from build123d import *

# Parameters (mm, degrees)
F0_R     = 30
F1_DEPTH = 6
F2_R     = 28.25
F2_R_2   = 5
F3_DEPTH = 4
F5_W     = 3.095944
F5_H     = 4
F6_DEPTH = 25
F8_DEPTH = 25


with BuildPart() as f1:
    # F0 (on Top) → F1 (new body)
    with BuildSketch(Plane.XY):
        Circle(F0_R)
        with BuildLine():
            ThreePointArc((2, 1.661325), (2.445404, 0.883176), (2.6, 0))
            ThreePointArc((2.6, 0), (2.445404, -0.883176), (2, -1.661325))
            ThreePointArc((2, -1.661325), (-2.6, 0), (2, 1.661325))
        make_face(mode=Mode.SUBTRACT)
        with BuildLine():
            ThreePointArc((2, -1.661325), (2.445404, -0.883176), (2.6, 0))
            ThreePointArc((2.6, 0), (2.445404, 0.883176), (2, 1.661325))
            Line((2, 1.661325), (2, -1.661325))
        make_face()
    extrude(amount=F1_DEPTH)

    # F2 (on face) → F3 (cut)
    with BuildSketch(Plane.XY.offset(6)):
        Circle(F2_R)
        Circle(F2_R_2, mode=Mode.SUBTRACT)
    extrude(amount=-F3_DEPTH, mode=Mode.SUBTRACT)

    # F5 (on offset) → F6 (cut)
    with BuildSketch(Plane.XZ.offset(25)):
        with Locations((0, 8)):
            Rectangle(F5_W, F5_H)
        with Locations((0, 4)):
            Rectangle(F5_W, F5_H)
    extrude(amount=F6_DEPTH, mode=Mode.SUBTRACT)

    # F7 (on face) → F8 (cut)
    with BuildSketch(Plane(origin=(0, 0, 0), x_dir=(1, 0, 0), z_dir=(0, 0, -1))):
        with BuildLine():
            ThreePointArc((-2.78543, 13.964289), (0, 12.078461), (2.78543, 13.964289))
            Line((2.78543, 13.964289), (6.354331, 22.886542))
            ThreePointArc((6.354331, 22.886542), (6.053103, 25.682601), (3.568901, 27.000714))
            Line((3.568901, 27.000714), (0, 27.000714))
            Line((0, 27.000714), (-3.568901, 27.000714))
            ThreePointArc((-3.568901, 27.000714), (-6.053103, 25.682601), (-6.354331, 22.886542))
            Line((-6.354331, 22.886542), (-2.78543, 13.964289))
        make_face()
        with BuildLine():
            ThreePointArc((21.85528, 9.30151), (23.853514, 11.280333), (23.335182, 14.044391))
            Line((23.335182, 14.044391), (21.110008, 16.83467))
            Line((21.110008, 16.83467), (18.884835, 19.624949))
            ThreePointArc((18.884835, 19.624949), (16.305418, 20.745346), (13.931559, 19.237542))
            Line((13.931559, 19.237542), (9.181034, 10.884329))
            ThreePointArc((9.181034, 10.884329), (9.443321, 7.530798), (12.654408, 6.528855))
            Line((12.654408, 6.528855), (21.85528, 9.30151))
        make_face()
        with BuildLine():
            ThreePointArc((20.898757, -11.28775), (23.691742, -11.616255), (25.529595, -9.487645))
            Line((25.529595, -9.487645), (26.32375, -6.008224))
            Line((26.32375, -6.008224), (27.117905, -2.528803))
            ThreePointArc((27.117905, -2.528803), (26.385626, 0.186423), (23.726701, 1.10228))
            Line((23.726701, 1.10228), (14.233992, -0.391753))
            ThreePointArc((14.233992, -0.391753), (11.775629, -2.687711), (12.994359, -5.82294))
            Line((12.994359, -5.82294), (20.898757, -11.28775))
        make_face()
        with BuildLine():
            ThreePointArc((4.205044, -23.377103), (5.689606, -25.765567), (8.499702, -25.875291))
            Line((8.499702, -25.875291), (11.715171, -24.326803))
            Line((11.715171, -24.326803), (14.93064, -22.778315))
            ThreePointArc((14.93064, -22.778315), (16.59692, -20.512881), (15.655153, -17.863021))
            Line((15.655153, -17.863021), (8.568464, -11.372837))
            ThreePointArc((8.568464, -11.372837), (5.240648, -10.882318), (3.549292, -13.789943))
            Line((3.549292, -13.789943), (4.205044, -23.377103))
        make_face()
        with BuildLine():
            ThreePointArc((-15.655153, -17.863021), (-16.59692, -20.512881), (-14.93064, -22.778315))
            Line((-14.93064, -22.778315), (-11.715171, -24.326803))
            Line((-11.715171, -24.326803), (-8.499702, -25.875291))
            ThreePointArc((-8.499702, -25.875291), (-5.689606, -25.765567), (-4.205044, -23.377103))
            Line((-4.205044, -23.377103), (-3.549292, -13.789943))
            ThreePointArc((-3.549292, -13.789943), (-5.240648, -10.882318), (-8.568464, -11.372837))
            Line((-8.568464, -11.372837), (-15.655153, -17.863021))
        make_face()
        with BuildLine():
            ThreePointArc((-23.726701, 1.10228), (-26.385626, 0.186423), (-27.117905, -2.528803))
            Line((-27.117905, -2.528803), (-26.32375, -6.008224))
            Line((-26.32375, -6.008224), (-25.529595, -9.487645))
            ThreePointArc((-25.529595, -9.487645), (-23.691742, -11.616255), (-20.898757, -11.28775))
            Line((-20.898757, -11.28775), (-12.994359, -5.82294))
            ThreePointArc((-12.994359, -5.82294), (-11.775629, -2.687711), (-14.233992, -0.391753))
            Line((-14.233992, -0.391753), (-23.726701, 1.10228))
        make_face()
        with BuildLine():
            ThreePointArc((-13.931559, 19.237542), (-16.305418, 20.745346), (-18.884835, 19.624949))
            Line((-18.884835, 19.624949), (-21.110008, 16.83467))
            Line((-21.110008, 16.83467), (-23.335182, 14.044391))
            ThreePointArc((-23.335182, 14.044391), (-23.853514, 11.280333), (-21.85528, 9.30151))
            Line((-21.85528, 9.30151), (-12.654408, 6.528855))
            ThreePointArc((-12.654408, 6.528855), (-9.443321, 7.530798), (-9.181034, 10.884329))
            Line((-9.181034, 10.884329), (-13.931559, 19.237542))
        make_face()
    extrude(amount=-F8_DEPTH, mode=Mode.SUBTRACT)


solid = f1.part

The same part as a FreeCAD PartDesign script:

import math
import FreeCAD as App
import Part
import Sketcher
from FreeCAD import Vector


def add_polygon(sketch, points):
    """Adds a closed chain of lines whose ends are joined by coincident constraints."""
    first, n = sketch.GeometryCount, len(points)
    for a, b in zip(points, points[1:] + points[:1]):
        sketch.addGeometry(Part.LineSegment(App.Vector(*a, 0), App.Vector(*b, 0)), False)
    for i in range(n):
        sketch.addConstraint(Sketcher.Constraint("Coincident", first + i, 2, first + (i + 1) % n, 1))

doc = App.newDocument("Part")
body = doc.addObject("PartDesign::Body", "Body")

sketch1 = body.newObject("Sketcher::SketchObject", "Sketch")
sketch1.AttachmentSupport = (doc.getObject("XY_Plane"), [""])
sketch1.MapMode = "FlatFace"
sketch1.addGeometry(Part.Circle(Vector(0, 0, 0), Vector(0, 0, 1), 30), False)
sketch1.addGeometry(Part.ArcOfCircle(Part.Circle(Vector(0, 0, 0), Vector(0, 0, 1), 2.6), math.radians(40), math.radians(320)), False)
sketch1.addGeometry(Part.LineSegment(Vector(2, 1.7, 0), Vector(2, -1.7, 0)), False)
sketch1.addConstraint(Sketcher.Constraint("Coincident", 1, 1, 2, 1))
sketch1.addConstraint(Sketcher.Constraint("Coincident", 2, 2, 1, 2))
sketch1.addConstraint(Sketcher.Constraint("Vertical", 2))
sketch1.addConstraint(Sketcher.Constraint("Coincident", 0, 3, -1, 1))
sketch1.addConstraint(Sketcher.Constraint("Coincident", 1, 3, -1, 1))
sketch1.addConstraint(Sketcher.Constraint("Diameter", 0, 60.0))
sketch1.addConstraint(Sketcher.Constraint("Radius", 1, 2.6))
sketch1.addConstraint(Sketcher.Constraint("DistanceX", -1, 1, 1, 1, 2.0))
pad1 = body.newObject("PartDesign::Pad", "Pad")
pad1.Profile = sketch1
pad1.Length = 6

sketch2 = body.newObject("Sketcher::SketchObject", "Sketch001")
sketch2.AttachmentSupport = (doc.getObject("XY_Plane"), [""])
sketch2.MapMode = "FlatFace"
sketch2.AttachmentOffset = App.Placement(Vector(0, 0, 6), App.Rotation())
sketch2.addGeometry(Part.Circle(Vector(0, 0, 0), Vector(0, 0, 1), 28), False)
sketch2.addGeometry(Part.Circle(Vector(0, 0, 0), Vector(0, 0, 1), 5), False)
sketch2.addConstraint(Sketcher.Constraint("Coincident", 0, 3, -1, 1))
sketch2.addConstraint(Sketcher.Constraint("Coincident", 1, 3, -1, 1))
sketch2.addConstraint(Sketcher.Constraint("Diameter", 1, 10.0))
sketch2.addConstraint(Sketcher.Constraint("Diameter", 0, 56.5))
pocket1 = body.newObject("PartDesign::Pocket", "Pocket")
pocket1.Profile = sketch2
pocket1.Length = 4

sketch3 = body.newObject("Sketcher::SketchObject", "Sketch002")
sketch3.AttachmentSupport = (doc.getObject("XZ_Plane"), [""])
sketch3.MapMode = "FlatFace"
sketch3.AttachmentOffset = App.Placement(Vector(0, 0, 25), App.Rotation())
add_polygon(sketch3, [(-1.5, 10), (-1.5, 2), (1.5, 2), (1.5, 10)])
sketch3.addConstraint(Sketcher.Constraint("Vertical", 0))
sketch3.addConstraint(Sketcher.Constraint("Horizontal", 1))
sketch3.addConstraint(Sketcher.Constraint("Vertical", 2))
sketch3.addConstraint(Sketcher.Constraint("Horizontal", 3))
sketch3.addConstraint(Sketcher.Constraint("DistanceY", 0, 2, 0, 1, 8.0))
sketch3.addConstraint(Sketcher.Constraint("DistanceY", -1, 1, 0, 2, 2.0))
sketch3.addConstraint(Sketcher.Constraint("DistanceX", 1, 1, 1, 2, 3.095944))
sketch3.addConstraint(Sketcher.Constraint("DistanceX", 0, 2, -1, 1, 1.547972))
pocket2 = body.newObject("PartDesign::Pocket", "Pocket001")
pocket2.Profile = sketch3
pocket2.Length = 25
pocket2.Reversed = True

sketch4 = body.newObject("Sketcher::SketchObject", "Sketch003")
sketch4.AttachmentSupport = (doc.getObject("XY_Plane"), [""])
sketch4.MapMode = "FlatFace"
sketch4.addGeometry(Part.ArcOfCircle(Part.Circle(Vector(0, -15.1, 0), Vector(0, 0, 1), 3), math.radians(22), math.radians(158)), False)
sketch4.addGeometry(Part.LineSegment(Vector(2.8, -14, 0), Vector(6.4, -22.9, 0)), False)
sketch4.addGeometry(Part.ArcOfCircle(Part.Circle(Vector(3.6, -24, 0), Vector(0, 0, 1), 3), math.radians(-90), math.radians(22)), False)
sketch4.addGeometry(Part.LineSegment(Vector(3.6, -27, 0), Vector(-3.6, -27, 0)), False)
sketch4.addGeometry(Part.ArcOfCircle(Part.Circle(Vector(-3.6, -24, 0), Vector(0, 0, 1), 3), math.radians(158), math.radians(270)), False)
sketch4.addGeometry(Part.LineSegment(Vector(-6.4, -22.9, 0), Vector(-2.8, -14, 0)), False)
sketch4.addGeometry(Part.ArcOfCircle(Part.Circle(Vector(21, -12.2, 0), Vector(0, 0, 1), 3), math.radians(-39), math.radians(73)), False)
sketch4.addGeometry(Part.LineSegment(Vector(23.3, -14, 0), Vector(21.1, -16.8, 0)), False)
sketch4.addGeometry(Part.LineSegment(Vector(21.1, -16.8, 0), Vector(18.9, -19.6, 0)), False)
sketch4.addGeometry(Part.ArcOfCircle(Part.Circle(Vector(16.5, -17.8, 0), Vector(0, 0, 1), 3), math.radians(-150), math.radians(-39)), False)
sketch4.addGeometry(Part.LineSegment(Vector(13.9, -19.2, 0), Vector(9.2, -10.9, 0)), False)
sketch4.addGeometry(Part.ArcOfCircle(Part.Circle(Vector(11.8, -9.4, 0), Vector(0, 0, 1), 3), math.radians(73), math.radians(210)), False)
sketch4.addGeometry(Part.LineSegment(Vector(12.7, -6.5, 0), Vector(21.9, -9.3, 0)), False)
sketch4.addGeometry(Part.ArcOfCircle(Part.Circle(Vector(22.6, 8.8, 0), Vector(0, 0, 1), 3), math.radians(13), math.radians(125)), False)
sketch4.addGeometry(Part.LineSegment(Vector(25.5, 9.5, 0), Vector(27.1, 2.5, 0)), False)
sketch4.addGeometry(Part.ArcOfCircle(Part.Circle(Vector(24.2, 1.9, 0), Vector(0, 0, 1), 3), math.radians(-99), math.radians(13)), False)
sketch4.addGeometry(Part.LineSegment(Vector(23.7, -1.1, 0), Vector(14.2, 0.4, 0)), False)
sketch4.addGeometry(Part.ArcOfCircle(Part.Circle(Vector(14.7, 3.4, 0), Vector(0, 0, 1), 3), math.radians(125), math.radians(261)), False)
sketch4.addGeometry(Part.LineSegment(Vector(13, 5.8, 0), Vector(20.9, 11.3, 0)), False)
sketch4.addGeometry(Part.ArcOfCircle(Part.Circle(Vector(7.2, 23.2, 0), Vector(0, 0, 1), 3), math.radians(64), math.radians(176)), False)
sketch4.addGeometry(Part.LineSegment(Vector(8.5, 25.9, 0), Vector(14.9, 22.8, 0)), False)
sketch4.addGeometry(Part.ArcOfCircle(Part.Circle(Vector(13.6, 20.1, 0), Vector(0, 0, 1), 3), math.radians(-48), math.radians(64)), False)
sketch4.addGeometry(Part.LineSegment(Vector(15.7, 17.9, 0), Vector(8.6, 11.4, 0)), False)
sketch4.addGeometry(Part.ArcOfCircle(Part.Circle(Vector(6.5, 13.6, 0), Vector(0, 0, 1), 3), math.radians(176), math.radians(312)), False)
sketch4.addGeometry(Part.LineSegment(Vector(3.5, 13.8, 0), Vector(4.2, 23.4, 0)), False)
sketch4.addGeometry(Part.ArcOfCircle(Part.Circle(Vector(-13.6, 20.1, 0), Vector(0, 0, 1), 3), math.radians(116), math.radians(228)), False)
sketch4.addGeometry(Part.LineSegment(Vector(-14.9, 22.8, 0), Vector(-8.5, 25.9, 0)), False)
sketch4.addGeometry(Part.ArcOfCircle(Part.Circle(Vector(-7.2, 23.2, 0), Vector(0, 0, 1), 3), math.radians(4), math.radians(116)), False)
sketch4.addGeometry(Part.LineSegment(Vector(-4.2, 23.4, 0), Vector(-3.5, 13.8, 0)), False)
sketch4.addGeometry(Part.ArcOfCircle(Part.Circle(Vector(-6.5, 13.6, 0), Vector(0, 0, 1), 3), math.radians(-132), math.radians(4)), False)
sketch4.addGeometry(Part.LineSegment(Vector(-8.6, 11.4, 0), Vector(-15.7, 17.9, 0)), False)
sketch4.addGeometry(Part.ArcOfCircle(Part.Circle(Vector(-24.2, 1.9, 0), Vector(0, 0, 1), 3), math.radians(167), math.radians(279)), False)
sketch4.addGeometry(Part.LineSegment(Vector(-27.1, 2.5, 0), Vector(-25.5, 9.5, 0)), False)
sketch4.addGeometry(Part.ArcOfCircle(Part.Circle(Vector(-22.6, 8.8, 0), Vector(0, 0, 1), 3), math.radians(55), math.radians(167)), False)
sketch4.addGeometry(Part.LineSegment(Vector(-20.9, 11.3, 0), Vector(-13, 5.8, 0)), False)
sketch4.addGeometry(Part.ArcOfCircle(Part.Circle(Vector(-14.7, 3.4, 0), Vector(0, 0, 1), 3), math.radians(-81), math.radians(55)), False)
sketch4.addGeometry(Part.LineSegment(Vector(-14.2, 0.4, 0), Vector(-23.7, -1.1, 0)), False)
sketch4.addGeometry(Part.ArcOfCircle(Part.Circle(Vector(-16.5, -17.8, 0), Vector(0, 0, 1), 3), math.radians(-141), math.radians(-30)), False)
sketch4.addGeometry(Part.LineSegment(Vector(-18.9, -19.6, 0), Vector(-21.1, -16.8, 0)), False)
sketch4.addGeometry(Part.LineSegment(Vector(-21.1, -16.8, 0), Vector(-23.3, -14, 0)), False)
sketch4.addGeometry(Part.ArcOfCircle(Part.Circle(Vector(-21, -12.2, 0), Vector(0, 0, 1), 3), math.radians(107), math.radians(219)), False)
sketch4.addGeometry(Part.LineSegment(Vector(-21.9, -9.3, 0), Vector(-12.7, -6.5, 0)), False)
sketch4.addGeometry(Part.ArcOfCircle(Part.Circle(Vector(-11.8, -9.4, 0), Vector(0, 0, 1), 3), math.radians(-30), math.radians(107)), False)
sketch4.addGeometry(Part.LineSegment(Vector(-9.2, -10.9, 0), Vector(-13.9, -19.2, 0)), False)
sketch4.addConstraint(Sketcher.Constraint("Tangent", 0, 1, 1, 1))
sketch4.addConstraint(Sketcher.Constraint("Tangent", 1, 2, 2, 2))
sketch4.addConstraint(Sketcher.Constraint("Tangent", 2, 1, 3, 1))
sketch4.addConstraint(Sketcher.Constraint("Tangent", 3, 2, 4, 2))
sketch4.addConstraint(Sketcher.Constraint("Tangent", 4, 1, 5, 1))
sketch4.addConstraint(Sketcher.Constraint("Tangent", 5, 2, 0, 2))
sketch4.addConstraint(Sketcher.Constraint("Tangent", 6, 1, 7, 1))
sketch4.addConstraint(Sketcher.Constraint("Coincident", 7, 2, 8, 1))
sketch4.addConstraint(Sketcher.Constraint("Tangent", 8, 2, 9, 2))
sketch4.addConstraint(Sketcher.Constraint("Tangent", 9, 1, 10, 1))
sketch4.addConstraint(Sketcher.Constraint("Tangent", 10, 2, 11, 2))
sketch4.addConstraint(Sketcher.Constraint("Tangent", 11, 1, 12, 1))
sketch4.addConstraint(Sketcher.Constraint("Tangent", 12, 2, 6, 2))
sketch4.addConstraint(Sketcher.Constraint("Tangent", 13, 1, 14, 1))
sketch4.addConstraint(Sketcher.Constraint("Tangent", 14, 2, 15, 2))
sketch4.addConstraint(Sketcher.Constraint("Tangent", 15, 1, 16, 1))
sketch4.addConstraint(Sketcher.Constraint("Tangent", 16, 2, 17, 2))
sketch4.addConstraint(Sketcher.Constraint("Tangent", 17, 1, 18, 1))
sketch4.addConstraint(Sketcher.Constraint("Tangent", 18, 2, 13, 2))
sketch4.addConstraint(Sketcher.Constraint("Tangent", 19, 1, 20, 1))
sketch4.addConstraint(Sketcher.Constraint("Tangent", 20, 2, 21, 2))
sketch4.addConstraint(Sketcher.Constraint("Tangent", 21, 1, 22, 1))
sketch4.addConstraint(Sketcher.Constraint("Tangent", 22, 2, 23, 2))
sketch4.addConstraint(Sketcher.Constraint("Tangent", 23, 1, 24, 1))
sketch4.addConstraint(Sketcher.Constraint("Tangent", 24, 2, 19, 2))
sketch4.addConstraint(Sketcher.Constraint("Tangent", 25, 1, 26, 1))
sketch4.addConstraint(Sketcher.Constraint("Tangent", 26, 2, 27, 2))
sketch4.addConstraint(Sketcher.Constraint("Tangent", 27, 1, 28, 1))
sketch4.addConstraint(Sketcher.Constraint("Tangent", 28, 2, 29, 2))
sketch4.addConstraint(Sketcher.Constraint("Tangent", 29, 1, 30, 1))
sketch4.addConstraint(Sketcher.Constraint("Tangent", 30, 2, 25, 2))
sketch4.addConstraint(Sketcher.Constraint("Tangent", 31, 1, 32, 1))
sketch4.addConstraint(Sketcher.Constraint("Tangent", 32, 2, 33, 2))
sketch4.addConstraint(Sketcher.Constraint("Tangent", 33, 1, 34, 1))
sketch4.addConstraint(Sketcher.Constraint("Tangent", 34, 2, 35, 2))
sketch4.addConstraint(Sketcher.Constraint("Tangent", 35, 1, 36, 1))
sketch4.addConstraint(Sketcher.Constraint("Tangent", 36, 2, 31, 2))
sketch4.addConstraint(Sketcher.Constraint("Tangent", 37, 1, 38, 1))
sketch4.addConstraint(Sketcher.Constraint("Coincident", 38, 2, 39, 1))
sketch4.addConstraint(Sketcher.Constraint("Tangent", 39, 2, 40, 2))
sketch4.addConstraint(Sketcher.Constraint("Tangent", 40, 1, 41, 1))
sketch4.addConstraint(Sketcher.Constraint("Tangent", 41, 2, 42, 2))
sketch4.addConstraint(Sketcher.Constraint("Tangent", 42, 1, 43, 1))
sketch4.addConstraint(Sketcher.Constraint("Tangent", 43, 2, 37, 2))
sketch4.addConstraint(Sketcher.Constraint("Horizontal", 3))
sketch4.addConstraint(Sketcher.Constraint("Equal", 0, 2))
sketch4.addConstraint(Sketcher.Constraint("Equal", 2, 4))
sketch4.addConstraint(Sketcher.Constraint("Equal", 4, 6))
sketch4.addConstraint(Sketcher.Constraint("Equal", 6, 9))
sketch4.addConstraint(Sketcher.Constraint("Equal", 9, 11))
sketch4.addConstraint(Sketcher.Constraint("Equal", 11, 13))
sketch4.addConstraint(Sketcher.Constraint("Equal", 13, 15))
sketch4.addConstraint(Sketcher.Constraint("Equal", 15, 17))
sketch4.addConstraint(Sketcher.Constraint("Equal", 17, 19))
sketch4.addConstraint(Sketcher.Constraint("Equal", 19, 21))
sketch4.addConstraint(Sketcher.Constraint("Equal", 21, 23))
sketch4.addConstraint(Sketcher.Constraint("Equal", 23, 25))
sketch4.addConstraint(Sketcher.Constraint("Equal", 25, 27))
sketch4.addConstraint(Sketcher.Constraint("Equal", 27, 29))
sketch4.addConstraint(Sketcher.Constraint("Equal", 29, 31))
sketch4.addConstraint(Sketcher.Constraint("Equal", 31, 33))
sketch4.addConstraint(Sketcher.Constraint("Equal", 33, 35))
sketch4.addConstraint(Sketcher.Constraint("Equal", 35, 37))
sketch4.addConstraint(Sketcher.Constraint("Equal", 37, 40))
sketch4.addConstraint(Sketcher.Constraint("Equal", 40, 42))
sketch4.addConstraint(Sketcher.Constraint("Symmetric", 21, 3, 25, 3, -2))
sketch4.addConstraint(Sketcher.Constraint("Symmetric", 19, 3, 27, 3, -2))
sketch4.addConstraint(Sketcher.Constraint("Symmetric", 23, 3, 29, 3, -2))
sketch4.addConstraint(Sketcher.Constraint("Symmetric", 15, 3, 31, 3, -2))
sketch4.addConstraint(Sketcher.Constraint("Symmetric", 13, 3, 33, 3, -2))
sketch4.addConstraint(Sketcher.Constraint("Symmetric", 17, 3, 35, 3, -2))
sketch4.addConstraint(Sketcher.Constraint("Symmetric", 9, 3, 37, 3, -2))
sketch4.addConstraint(Sketcher.Constraint("Symmetric", 6, 3, 40, 3, -2))
sketch4.addConstraint(Sketcher.Constraint("Symmetric", 11, 3, 42, 3, -2))
sketch4.addConstraint(Sketcher.Constraint("Symmetric", 1, 2, 4, 1, -2))
sketch4.addConstraint(Sketcher.Constraint("Symmetric", 7, 2, 38, 2, -2))
sketch4.addConstraint(Sketcher.Constraint("Parallel", 7, 8))
sketch4.addConstraint(Sketcher.Constraint("Equal", 7, 8))
sketch4.addConstraint(Sketcher.Constraint("Equal", 5, 10))
sketch4.addConstraint(Sketcher.Constraint("Equal", 10, 12))
sketch4.addConstraint(Sketcher.Constraint("Equal", 12, 16))
sketch4.addConstraint(Sketcher.Constraint("Equal", 16, 18))
sketch4.addConstraint(Sketcher.Constraint("Equal", 14, 20))
sketch4.addConstraint(Sketcher.Constraint("Equal", 18, 22))
sketch4.addConstraint(Sketcher.Constraint("Equal", 22, 24))
sketch4.addConstraint(Sketcher.Constraint("Radius", 0, 3.0))
sketch4.addConstraint(Sketcher.Constraint("DistanceX", 3, 2, 3, 1, 7.137802))
sketch4.addConstraint(Sketcher.Constraint("Distance", 7, 3.568901))
sketch4.addConstraint(Sketcher.Constraint("Distance", 14, 7.137802))
sketch4.addConstraint(Sketcher.Constraint("DistanceX", -1, 1, 23, 3, 6.5423))
sketch4.addConstraint(Sketcher.Constraint("DistanceX", -1, 1, 15, 1, 23.726701))
sketch4.addConstraint(Sketcher.Constraint("DistanceX", 26, 2, -1, 1, 8.499702))
sketch4.addConstraint(Sketcher.Constraint("Distance", 1, 9.60956))
sketch4.addConstraint(Sketcher.Constraint("DistanceY", 0, 3, -1, 1, 15.078461))
sketch4.addConstraint(Sketcher.Constraint("DistanceX", -1, 1, 6, 3, 20.989689))
sketch4.addConstraint(Sketcher.Constraint("DistanceY", 6, 3, -1, 1, 12.173921))
sketch4.addConstraint(Sketcher.Constraint("DistanceX", -1, 1, 9, 3, 16.539341))
sketch4.addConstraint(Sketcher.Constraint("DistanceX", -1, 1, 13, 3, 22.60481))
sketch4.addConstraint(Sketcher.Constraint("DistanceY", -1, 1, 13, 3, 8.820082))
sketch4.addConstraint(Sketcher.Constraint("DistanceY", -1, 1, 21, 3, 20.075408))
pocket3 = body.newObject("PartDesign::Pocket", "Pocket002")
pocket3.Profile = sketch4
pocket3.Length = 25
pocket3.Reversed = True

doc.recompute()
